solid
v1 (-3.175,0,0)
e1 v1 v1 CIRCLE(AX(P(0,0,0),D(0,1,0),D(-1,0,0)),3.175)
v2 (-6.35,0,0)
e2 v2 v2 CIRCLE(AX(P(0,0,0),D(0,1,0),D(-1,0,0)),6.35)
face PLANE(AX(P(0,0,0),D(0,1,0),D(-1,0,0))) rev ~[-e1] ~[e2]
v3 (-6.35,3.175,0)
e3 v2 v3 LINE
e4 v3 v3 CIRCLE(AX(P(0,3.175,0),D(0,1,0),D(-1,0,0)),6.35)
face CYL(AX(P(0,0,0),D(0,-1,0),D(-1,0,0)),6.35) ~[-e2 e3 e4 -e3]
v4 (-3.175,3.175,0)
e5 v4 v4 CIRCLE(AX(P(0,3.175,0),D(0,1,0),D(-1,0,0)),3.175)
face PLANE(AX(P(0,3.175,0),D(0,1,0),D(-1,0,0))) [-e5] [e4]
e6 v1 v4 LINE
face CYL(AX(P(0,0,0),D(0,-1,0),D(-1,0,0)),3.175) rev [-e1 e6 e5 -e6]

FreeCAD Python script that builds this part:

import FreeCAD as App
import Part
import Sketcher
Q = App.Units.Quantity

doc = App.newDocument("Part")
params = doc.addObject("Spreadsheet::Sheet", "Params")
for row, (alias, value) in enumerate([
    ("sketch1_diameter", "0.5 in"),
    ("sketch1_diameter2", "0.25 in"),
    ("pad1_length", "0.125 in"),
], start=1):
    params.set(f"A{row}", alias)
    params.set(f"B{row}", "=" + value)
    params.setAlias(f"B{row}", alias)

body = doc.addObject("PartDesign::Body", "Body")

# Sketch on XZ plane
sketch1 = body.newObject("Sketcher::SketchObject", "Sketch")
sketch1.AttachmentSupport = (doc.getObject("XZ_Plane"), [""])
sketch1.MapMode = "FlatFace"
sketch1.addGeometry(Part.Circle(App.Vector(0, 0, 0), App.Vector(0, 0, 1), 6.3), False)
sketch1.addGeometry(Part.Circle(App.Vector(0, 0, 0), App.Vector(0, 0, 1), 3.2), False)
sketch1.addConstraint(Sketcher.Constraint("Coincident", 0, 3, -1, 1))
sketch1.addConstraint(Sketcher.Constraint("Coincident", 1, 3, -1, 1))
sketch1.addConstraint(Sketcher.Constraint("Diameter", 0, Q("0.5 in")))
sketch1.addConstraint(Sketcher.Constraint("Diameter", 1, Q("0.25 in")))
sketch1.setExpression("Constraints[2]", "Params.sketch1_diameter")
sketch1.setExpression("Constraints[3]", "Params.sketch1_diameter2")
pad1 = body.newObject("PartDesign::Pad", "Pad")
pad1.Profile = sketch1
pad1.setExpression("Length", "Params.pad1_length")
pad1.Reversed = True

doc.recompute()
